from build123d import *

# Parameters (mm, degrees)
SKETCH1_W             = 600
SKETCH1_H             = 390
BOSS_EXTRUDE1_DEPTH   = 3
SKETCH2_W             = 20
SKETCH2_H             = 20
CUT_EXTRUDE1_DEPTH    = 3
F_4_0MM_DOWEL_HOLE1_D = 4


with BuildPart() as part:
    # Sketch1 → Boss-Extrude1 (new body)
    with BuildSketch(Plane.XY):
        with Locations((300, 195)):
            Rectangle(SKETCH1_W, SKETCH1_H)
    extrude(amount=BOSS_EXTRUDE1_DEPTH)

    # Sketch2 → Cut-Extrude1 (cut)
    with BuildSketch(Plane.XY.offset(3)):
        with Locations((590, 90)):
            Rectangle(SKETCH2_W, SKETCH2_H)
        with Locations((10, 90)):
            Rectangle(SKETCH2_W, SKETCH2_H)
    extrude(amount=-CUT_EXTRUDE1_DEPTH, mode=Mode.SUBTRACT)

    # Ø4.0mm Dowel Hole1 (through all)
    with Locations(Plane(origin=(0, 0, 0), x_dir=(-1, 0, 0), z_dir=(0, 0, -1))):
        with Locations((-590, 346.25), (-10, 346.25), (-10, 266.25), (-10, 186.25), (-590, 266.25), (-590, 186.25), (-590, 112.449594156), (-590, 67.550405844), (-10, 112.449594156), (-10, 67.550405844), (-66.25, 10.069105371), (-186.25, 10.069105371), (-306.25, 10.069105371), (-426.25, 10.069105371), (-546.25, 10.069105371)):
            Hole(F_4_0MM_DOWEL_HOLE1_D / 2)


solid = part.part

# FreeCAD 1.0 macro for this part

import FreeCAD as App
import Part
import Sketcher

doc = App.newDocument("Part")
body = doc.addObject("PartDesign::Body", "Body")

# Sketch on XY plane
sketch1 = body.newObject("Sketcher::SketchObject", "Sketch")
sketch1.AttachmentSupport = (doc.getObject("XY_Plane"), [""])
sketch1.MapMode = "FlatFace"
sketch1.addGeometry(Part.LineSegment(App.Vector(0, 390, 0), App.Vector(0, 0, 0)), False)
sketch1.addGeometry(Part.LineSegment(App.Vector(0, 0, 0), App.Vector(600, 0, 0)), False)
sketch1.addGeometry(Part.LineSegment(App.Vector(600, 0, 0), App.Vector(600, 390, 0)), False)
sketch1.addGeometry(Part.LineSegment(App.Vector(600, 390, 0), App.Vector(0, 390, 0)), False)
sketch1.addConstraint(Sketcher.Constraint("Coincident", 0, 2, 1, 1))
sketch1.addConstraint(Sketcher.Constraint("Coincident", 1, 2, 2, 1))
sketch1.addConstraint(Sketcher.Constraint("Coincident", 2, 2, 3, 1))
sketch1.addConstraint(Sketcher.Constraint("Coincident", 3, 2, 0, 1))
sketch1.addConstraint(Sketcher.Constraint("Vertical", 0))
sketch1.addConstraint(Sketcher.Constraint("Horizontal", 1))
sketch1.addConstraint(Sketcher.Constraint("Vertical", 2))
sketch1.addConstraint(Sketcher.Constraint("Horizontal", 3))
sketch1.addConstraint(Sketcher.Constraint("Coincident", 0, 2, -1, 1))
sketch1.addConstraint(Sketcher.Constraint("DistanceX", 1, 1, 1, 2, 600.0))
sketch1.addConstraint(Sketcher.Constraint("DistanceY", 0, 2, 0, 1, 390.0))
pad1 = body.newObject("PartDesign::Pad", "Pad")
pad1.Profile = sketch1
pad1.Length = 3

# Sketch on XY plane
sketch2 = body.newObject("Sketcher::SketchObject", "Sketch001")
sketch2.AttachmentSupport = (doc.getObject("XY_Plane"), [""])
sketch2.MapMode = "FlatFace"
sketch2.AttachmentOffset = App.Placement(App.Vector(0, 0, 3), App.Rotation())
sketch2.addGeometry(Part.LineSegment(App.Vector(580, 100, 0), App.Vector(580, 80, 0)), False)
sketch2.addGeometry(Part.LineSegment(App.Vector(580, 80, 0), App.Vector(600, 80, 0)), False)
sketch2.addGeometry(Part.LineSegment(App.Vector(600, 80, 0), App.Vector(600, 100, 0)), False)
sketch2.addGeometry(Part.LineSegment(App.Vector(600, 100, 0), App.Vector(580, 100, 0)), False)
sketch2.addGeometry(Part.LineSegment(App.Vector(0, 100, 0), App.Vector(0, 80, 0)), False)
sketch2.addGeometry(Part.LineSegment(App.Vector(0, 80, 0), App.Vector(20, 80, 0)), False)
sketch2.addGeometry(Part.LineSegment(App.Vector(20, 80, 0), App.Vector(20, 100, 0)), False)
sketch2.addGeometry(Part.LineSegment(App.Vector(20, 100, 0), App.Vector(0, 100, 0)), False)
sketch2.addConstraint(Sketcher.Constraint("Coincident", 0, 2, 1, 1))
sketch2.addConstraint(Sketcher.Constraint("Coincident", 1, 2, 2, 1))
sketch2.addConstraint(Sketcher.Constraint("Coincident", 2, 2, 3, 1))
sketch2.addConstraint(Sketcher.Constraint("Coincident", 3, 2, 0, 1))
sketch2.addConstraint(Sketcher.Constraint("Coincident", 4, 2, 5, 1))
sketch2.addConstraint(Sketcher.Constraint("Coincident", 5, 2, 6, 1))
sketch2.addConstraint(Sketcher.Constraint("Coincident", 6, 2, 7, 1))
sketch2.addConstraint(Sketcher.Constraint("Coincident", 7, 2, 4, 1))
sketch2.addConstraint(Sketcher.Constraint("Vertical", 0))
sketch2.addConstraint(Sketcher.Constraint("Horizontal", 1))
sketch2.addConstraint(Sketcher.Constraint("Vertical", 2))
sketch2.addConstraint(Sketcher.Constraint("Horizontal", 3))
sketch2.addConstraint(Sketcher.Constraint("Vertical", 4))
sketch2.addConstraint(Sketcher.Constraint("Horizontal", 5))
sketch2.addConstraint(Sketcher.Constraint("Vertical", 6))
sketch2.addConstraint(Sketcher.Constraint("Horizontal", 7))
sketch2.addConstraint(Sketcher.Constraint("PointOnObject", 4, 2, -2))
sketch2.addConstraint(Sketcher.Constraint("Horizontal", 1, 2, 4, 2))
sketch2.addConstraint(Sketcher.Constraint("Horizontal", 3, 2, 6, 2))
sketch2.addConstraint(Sketcher.Constraint("Equal", 3, 5))
sketch2.addConstraint(Sketcher.Constraint("Equal", 7, 0))
sketch2.addConstraint(Sketcher.Constraint("DistanceX", 1, 1, 1, 2, 20.0))
sketch2.addConstraint(Sketcher.Constraint("DistanceX", -1, 1, 0, 2, 580.0))
sketch2.addConstraint(Sketcher.Constraint("DistanceY", -1, 1, 0, 2, 80.0))
pocket1 = body.newObject("PartDesign::Pocket", "Pocket")
pocket1.Profile = sketch2
pocket1.Length = 3

# Sketch on XY plane
sketch3 = body.newObject("Sketcher::SketchObject", "Sketch002")
sketch3.AttachmentSupport = (doc.getObject("XY_Plane"), [""])
sketch3.MapMode = "FlatFace"
sketch3.addGeometry(Part.Circle(App.Vector(590, 346.2, 0), App.Vector(0, 0, 1), 2), False)
sketch3.addGeometry(Part.Circle(App.Vector(10, 346.2, 0), App.Vector(0, 0, 1), 2), False)
sketch3.addGeometry(Part.Circle(App.Vector(10, 266.2, 0), App.Vector(0, 0, 1), 2), False)
sketch3.addGeometry(Part.Circle(App.Vector(10, 186.2, 0), App.Vector(0, 0, 1), 2), False)
sketch3.addGeometry(Part.Circle(App.Vector(590, 266.2, 0), App.Vector(0, 0, 1), 2), False)
sketch3.addGeometry(Part.Circle(App.Vector(590, 186.2, 0), App.Vector(0, 0, 1), 2), False)
sketch3.addGeometry(Part.Circle(App.Vector(590, 112.4, 0), App.Vector(0, 0, 1), 2), False)
sketch3.addGeometry(Part.Circle(App.Vector(590, 67.6, 0), App.Vector(0, 0, 1), 2), False)
sketch3.addGeometry(Part.Circle(App.Vector(10, 112.4, 0), App.Vector(0, 0, 1), 2), False)
sketch3.addGeometry(Part.Circle(App.Vector(10, 67.6, 0), App.Vector(0, 0, 1), 2), False)
sketch3.addGeometry(Part.Circle(App.Vector(66.2, 10.1, 0), App.Vector(0, 0, 1), 2), False)
sketch3.addGeometry(Part.Circle(App.Vector(186.2, 10.1, 0), App.Vector(0, 0, 1), 2), False)
sketch3.addGeometry(Part.Circle(App.Vector(306.2, 10.1, 0), App.Vector(0, 0, 1), 2), False)
sketch3.addGeometry(Part.Circle(App.Vector(426.2, 10.1, 0), App.Vector(0, 0, 1), 2), False)
sketch3.addGeometry(Part.Circle(App.Vector(546.2, 10.1, 0), App.Vector(0, 0, 1), 2), False)
sketch3.addConstraint(Sketcher.Constraint("Equal", 0, 1))
sketch3.addConstraint(Sketcher.Constraint("Equal", 1, 2))
sketch3.addConstraint(Sketcher.Constraint("Equal", 2, 3))
sketch3.addConstraint(Sketcher.Constraint("Equal", 3, 4))
sketch3.addConstraint(Sketcher.Constraint("Equal", 4, 5))
sketch3.addConstraint(Sketcher.Constraint("Equal", 5, 6))
sketch3.addConstraint(Sketcher.Constraint("Equal", 6, 7))
sketch3.addConstraint(Sketcher.Constraint("Equal", 7, 8))
sketch3.addConstraint(Sketcher.Constraint("Equal", 8, 9))
sketch3.addConstraint(Sketcher.Constraint("Equal", 9, 10))
sketch3.addConstraint(Sketcher.Constraint("Equal", 10, 11))
sketch3.addConstraint(Sketcher.Constraint("Equal", 11, 12))
sketch3.addConstraint(Sketcher.Constraint("Equal", 12, 13))
sketch3.addConstraint(Sketcher.Constraint("Equal", 13, 14))
sketch3.addConstraint(Sketcher.Constraint("Horizontal", 0, 3, 1, 3))
sketch3.addConstraint(Sketcher.Constraint("Horizontal", 2, 3, 4, 3))
sketch3.addConstraint(Sketcher.Constraint("Horizontal", 3, 3, 5, 3))
sketch3.addConstraint(Sketcher.Constraint("Horizontal", 6, 3, 8, 3))
sketch3.addConstraint(Sketcher.Constraint("Horizontal", 7, 3, 9, 3))
sketch3.addConstraint(Sketcher.Constraint("Horizontal", 10, 3, 11, 3))
sketch3.addConstraint(Sketcher.Constraint("Horizontal", 11, 3, 12, 3))
sketch3.addConstraint(Sketcher.Constraint("Horizontal", 12, 3, 13, 3))
sketch3.addConstraint(Sketcher.Constraint("Horizontal", 13, 3, 14, 3))
sketch3.addConstraint(Sketcher.Constraint("Vertical", 1, 3, 2, 3))
sketch3.addConstraint(Sketcher.Constraint("Vertical", 2, 3, 3, 3))
sketch3.addConstraint(Sketcher.Constraint("Vertical", 0, 3, 4, 3))
sketch3.addConstraint(Sketcher.Constraint("Vertical", 4, 3, 5, 3))
sketch3.addConstraint(Sketcher.Constraint("Vertical", 5, 3, 6, 3))
sketch3.addConstraint(Sketcher.Constraint("Vertical", 6, 3, 7, 3))
sketch3.addConstraint(Sketcher.Constraint("Vertical", 3, 3, 8, 3))
sketch3.addConstraint(Sketcher.Constraint("Vertical", 8, 3, 9, 3))
sketch3.addConstraint(Sketcher.Constraint("Diameter", 0, 4.0))
sketch3.addConstraint(Sketcher.Constraint("DistanceX", -1, 1, 0, 3, 590.0))
sketch3.addConstraint(Sketcher.Constraint("DistanceX", -1, 1, 1, 3, 10.0))
sketch3.addConstraint(Sketcher.Constraint("DistanceY", 2, 3, 1, 3, 80.0))
sketch3.addConstraint(Sketcher.Constraint("DistanceY", 3, 3, 2, 3, 80.0))
sketch3.addConstraint(Sketcher.Constraint("DistanceX", 10, 3, 11, 3, 120.0))
sketch3.addConstraint(Sketcher.Constraint("DistanceX", 11, 3, 12, 3, 120.0))
sketch3.addConstraint(Sketcher.Constraint("DistanceX", 12, 3, 13, 3, 120.0))
sketch3.addConstraint(Sketcher.Constraint("DistanceX", 13, 3, 14, 3, 120.0))
sketch3.addConstraint(Sketcher.Constraint("DistanceY", -1, 1, 0, 3, 346.25))
sketch3.addConstraint(Sketcher.Constraint("DistanceX", -1, 1, 10, 3, 66.25))
sketch3.addConstraint(Sketcher.Constraint("DistanceY", 10, 3, 9, 3, 57.4813))
sketch3.addConstraint(Sketcher.Constraint("DistanceY", 7, 3, 6, 3, 44.899188))
sketch3.addConstraint(Sketcher.Constraint("DistanceY", -1, 1, 6, 3, 112.449594))
doc.recompute()
hole = body.newObject("PartDesign::Hole", "Hole")
hole.Profile = sketch3
hole.ThreadType = "None"
hole.Diameter = 4
hole.DepthType = "ThroughAll"
hole.Reversed = True

doc.recompute()
